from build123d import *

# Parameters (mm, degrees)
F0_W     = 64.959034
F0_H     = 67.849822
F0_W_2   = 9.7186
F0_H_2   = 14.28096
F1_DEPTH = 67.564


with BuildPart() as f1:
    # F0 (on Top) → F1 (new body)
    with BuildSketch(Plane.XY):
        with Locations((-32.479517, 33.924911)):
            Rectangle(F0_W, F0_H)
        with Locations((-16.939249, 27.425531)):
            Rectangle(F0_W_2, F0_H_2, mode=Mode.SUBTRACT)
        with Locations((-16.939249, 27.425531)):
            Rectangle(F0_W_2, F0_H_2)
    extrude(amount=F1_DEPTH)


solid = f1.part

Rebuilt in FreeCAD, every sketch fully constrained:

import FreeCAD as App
import Part
import Sketcher
Q = App.Units.Quantity

doc = App.newDocument("Part")
body = doc.addObject("PartDesign::Body", "Body")

sketch1 = body.newObject("Sketcher::SketchObject", "Sketch")
sketch1.AttachmentSupport = (doc.getObject("XY_Plane"), [""])
sketch1.MapMode = "FlatFace"
sketch1.addGeometry([
    Part.LineSegment(App.Vector(-65, 68, 0), App.Vector(-65, 0, 0)),
    Part.LineSegment(App.Vector(-65, 0, 0), App.Vector(0, 0, 0)),
    Part.LineSegment(App.Vector(0, 0, 0), App.Vector(0, 68, 0)),
    Part.LineSegment(App.Vector(0, 68, 0), App.Vector(-65, 68, 0)),
], False)
sketch1.addConstraint([
    Sketcher.Constraint("Coincident", 0, 2, 1, 1),
    Sketcher.Constraint("Coincident", 1, 2, 2, 1),
    Sketcher.Constraint("Coincident", 2, 2, 3, 1),
    Sketcher.Constraint("Coincident", 3, 2, 0, 1),
    Sketcher.Constraint("Vertical", 0),
    Sketcher.Constraint("Horizontal", 1),
    Sketcher.Constraint("Vertical", 2),
    Sketcher.Constraint("Horizontal", 3),
    Sketcher.Constraint("Coincident", 1, 2, -1, 1),
    Sketcher.Constraint("DistanceX", 1, 1, 1, 2, Q("64.959034 mm")),
    Sketcher.Constraint("DistanceY", 0, 2, 0, 1, Q("67.849822 mm")),
])
pad1 = body.newObject("PartDesign::Pad", "Pad")
pad1.Profile = sketch1
pad1.Length = Q("2.66 in")

doc.recompute()
